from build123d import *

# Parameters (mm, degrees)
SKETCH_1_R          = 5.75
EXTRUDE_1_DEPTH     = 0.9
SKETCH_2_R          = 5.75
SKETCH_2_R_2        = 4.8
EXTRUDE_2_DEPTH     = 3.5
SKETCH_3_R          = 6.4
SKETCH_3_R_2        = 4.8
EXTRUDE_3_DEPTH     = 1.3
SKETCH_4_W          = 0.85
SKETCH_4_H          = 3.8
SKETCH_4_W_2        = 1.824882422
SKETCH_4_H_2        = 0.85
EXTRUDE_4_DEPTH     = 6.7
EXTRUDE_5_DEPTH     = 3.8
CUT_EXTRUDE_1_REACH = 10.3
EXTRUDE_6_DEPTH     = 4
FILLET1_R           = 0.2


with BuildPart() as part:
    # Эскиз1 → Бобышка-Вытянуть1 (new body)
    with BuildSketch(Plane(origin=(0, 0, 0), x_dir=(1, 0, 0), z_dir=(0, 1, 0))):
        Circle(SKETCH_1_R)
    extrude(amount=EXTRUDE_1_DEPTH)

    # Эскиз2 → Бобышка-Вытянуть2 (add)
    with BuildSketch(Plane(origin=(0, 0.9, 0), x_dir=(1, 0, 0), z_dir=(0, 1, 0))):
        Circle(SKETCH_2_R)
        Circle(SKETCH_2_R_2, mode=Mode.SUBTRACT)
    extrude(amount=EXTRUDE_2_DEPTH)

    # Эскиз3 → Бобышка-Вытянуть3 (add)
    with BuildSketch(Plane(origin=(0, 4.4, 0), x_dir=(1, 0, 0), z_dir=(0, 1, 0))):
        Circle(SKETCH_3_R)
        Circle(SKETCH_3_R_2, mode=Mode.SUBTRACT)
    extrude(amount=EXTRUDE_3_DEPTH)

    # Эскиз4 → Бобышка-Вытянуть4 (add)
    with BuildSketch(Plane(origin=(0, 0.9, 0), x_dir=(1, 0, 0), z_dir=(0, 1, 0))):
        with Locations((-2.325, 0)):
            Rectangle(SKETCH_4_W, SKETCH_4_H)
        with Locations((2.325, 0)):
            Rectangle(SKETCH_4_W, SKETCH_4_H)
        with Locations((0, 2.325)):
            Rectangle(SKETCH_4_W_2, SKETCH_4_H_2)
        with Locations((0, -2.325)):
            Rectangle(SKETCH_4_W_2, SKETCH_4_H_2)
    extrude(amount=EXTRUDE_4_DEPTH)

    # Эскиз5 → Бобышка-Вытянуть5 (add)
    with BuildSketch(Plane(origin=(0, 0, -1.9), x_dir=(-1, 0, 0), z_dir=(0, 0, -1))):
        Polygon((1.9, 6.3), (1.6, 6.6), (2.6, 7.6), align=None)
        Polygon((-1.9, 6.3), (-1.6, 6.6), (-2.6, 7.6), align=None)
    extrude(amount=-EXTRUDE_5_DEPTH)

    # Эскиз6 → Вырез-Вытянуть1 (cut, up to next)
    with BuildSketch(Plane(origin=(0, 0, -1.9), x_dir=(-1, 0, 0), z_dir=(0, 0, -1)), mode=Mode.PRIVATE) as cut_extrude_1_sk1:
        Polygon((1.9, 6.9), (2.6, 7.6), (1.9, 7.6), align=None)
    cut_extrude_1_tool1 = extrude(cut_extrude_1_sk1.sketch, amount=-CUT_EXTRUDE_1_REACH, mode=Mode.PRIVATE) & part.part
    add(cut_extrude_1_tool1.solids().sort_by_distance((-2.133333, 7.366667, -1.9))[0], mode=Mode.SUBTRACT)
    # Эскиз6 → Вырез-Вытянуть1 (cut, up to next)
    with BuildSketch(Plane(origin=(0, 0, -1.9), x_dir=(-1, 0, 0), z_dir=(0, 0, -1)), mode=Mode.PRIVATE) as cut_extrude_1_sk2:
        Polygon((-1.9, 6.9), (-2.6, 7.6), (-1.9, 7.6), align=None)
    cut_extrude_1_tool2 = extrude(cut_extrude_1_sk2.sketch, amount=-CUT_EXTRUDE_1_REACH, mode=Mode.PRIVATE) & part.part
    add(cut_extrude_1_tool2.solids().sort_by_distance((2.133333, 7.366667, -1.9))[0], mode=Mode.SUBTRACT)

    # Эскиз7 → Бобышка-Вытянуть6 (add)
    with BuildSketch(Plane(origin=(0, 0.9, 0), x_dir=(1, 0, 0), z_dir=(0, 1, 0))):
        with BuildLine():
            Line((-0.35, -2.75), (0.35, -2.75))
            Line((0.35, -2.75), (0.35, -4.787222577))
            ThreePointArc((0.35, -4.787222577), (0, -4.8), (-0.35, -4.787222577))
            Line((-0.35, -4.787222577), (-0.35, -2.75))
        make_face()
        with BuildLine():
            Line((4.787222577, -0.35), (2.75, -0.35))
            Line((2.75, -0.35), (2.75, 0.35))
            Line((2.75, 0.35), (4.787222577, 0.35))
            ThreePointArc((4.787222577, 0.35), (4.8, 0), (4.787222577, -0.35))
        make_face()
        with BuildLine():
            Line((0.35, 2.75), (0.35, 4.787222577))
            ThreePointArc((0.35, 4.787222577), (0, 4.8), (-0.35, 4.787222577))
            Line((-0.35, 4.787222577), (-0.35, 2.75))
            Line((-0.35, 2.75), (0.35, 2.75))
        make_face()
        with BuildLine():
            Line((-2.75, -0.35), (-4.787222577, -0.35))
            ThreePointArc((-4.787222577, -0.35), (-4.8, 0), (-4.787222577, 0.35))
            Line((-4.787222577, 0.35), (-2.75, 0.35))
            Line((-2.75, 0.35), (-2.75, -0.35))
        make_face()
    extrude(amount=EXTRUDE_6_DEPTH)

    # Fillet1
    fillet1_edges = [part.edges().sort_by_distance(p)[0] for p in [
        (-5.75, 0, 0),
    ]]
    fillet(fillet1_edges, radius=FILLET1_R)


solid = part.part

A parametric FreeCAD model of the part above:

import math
import FreeCAD as App
import Part
import Sketcher

V = App.Vector


def edges_at(feature, points):
    """Names of the edges that pass closest to the given points."""
    edges = feature.Shape.Edges
    near = lambda p: min(range(len(edges)), key=lambda i: edges[i].distToShape(Part.Vertex(*p))[0])
    return sorted({f"Edge{near(p) + 1}" for p in points})

doc = App.newDocument("Part")
body = doc.addObject("PartDesign::Body", "Body")

# Sketch on XZ plane
sketch1 = doc.addObject("Sketcher::SketchObject", "Sketch")
body.addObject(sketch1)
sketch1.AttachmentSupport = (doc.XZ_Plane, [""])
sketch1.MapMode = "FlatFace"
sketch1.addGeometry(Part.Circle(V(0, 0, 0), V(0, 0, 1), 6), False)
sketch1.addConstraint([
    Sketcher.Constraint("Coincident", 0, 3, -1, 1),
    Sketcher.Constraint("Diameter", 0, 11.5),
])
pad1 = doc.addObject("PartDesign::Pad", "Pad")
body.addObject(pad1)
pad1.Profile = sketch1
pad1.Length = 0.9
pad1.Reversed = True

# Sketch on XZ plane
sketch2 = doc.addObject("Sketcher::SketchObject", "Sketch001")
body.addObject(sketch2)
sketch2.AttachmentSupport = (doc.XZ_Plane, [""])
sketch2.MapMode = "FlatFace"
sketch2.AttachmentOffset = App.Placement(V(0, 0, -0.9), App.Rotation())
sketch2.addGeometry([
    Part.Circle(V(0, 0, 0), V(0, 0, 1), 5.8),
    Part.Circle(V(0, 0, 0), V(0, 0, 1), 4.8),
], False)
sketch2.addConstraint([
    Sketcher.Constraint("Coincident", 0, 3, -1, 1),
    Sketcher.Constraint("Coincident", 1, 3, -1, 1),
    Sketcher.Constraint("Diameter", 0, 11.5),
    Sketcher.Constraint("Diameter", 1, 9.6),
])
pad2 = doc.addObject("PartDesign::Pad", "Pad001")
body.addObject(pad2)
pad2.Profile = sketch2
pad2.Length = 3.5
pad2.Reversed = True

# Sketch on XZ plane
sketch3 = doc.addObject("Sketcher::SketchObject", "Sketch002")
body.addObject(sketch3)
sketch3.AttachmentSupport = (doc.XZ_Plane, [""])
sketch3.MapMode = "FlatFace"
sketch3.AttachmentOffset = App.Placement(V(0, 0, -4.4), App.Rotation())
sketch3.addGeometry([
    Part.Circle(V(0, 0, 0), V(0, 0, 1), 6.4),
    Part.Circle(V(0, 0, 0), V(0, 0, 1), 4.8),
], False)
sketch3.addConstraint([
    Sketcher.Constraint("Coincident", 0, 3, -1, 1),
    Sketcher.Constraint("Coincident", 1, 3, -1, 1),
    Sketcher.Constraint("Diameter", 0, 12.8),
    Sketcher.Constraint("Diameter", 1, 9.6),
])
pad3 = doc.addObject("PartDesign::Pad", "Pad002")
body.addObject(pad3)
pad3.Profile = sketch3
pad3.Length = 1.3
pad3.Reversed = True

# Sketch on XZ plane
sketch4 = doc.addObject("Sketcher::SketchObject", "Sketch003")
body.addObject(sketch4)
sketch4.AttachmentSupport = (doc.XZ_Plane, [""])
sketch4.MapMode = "FlatFace"
sketch4.AttachmentOffset = App.Placement(V(0, 0, -0.9), App.Rotation())
sketch4.addGeometry([
    Part.LineSegment(V(-2.8, -1.9, 0), V(-2.8, 1.9, 0)),  # 0
    Part.LineSegment(V(-2.8, 1.9, 0), V(-1.9, 1.9, 0)),  # 1
    Part.LineSegment(V(-1.9, 1.9, 0), V(-1.9, -1.9, 0)),  # 2
    Part.LineSegment(V(-1.9, -1.9, 0), V(-2.8, -1.9, 0)),  # 3
    Part.LineSegment(V(1.9, -1.9, 0), V(1.9, 1.9, 0)),  # 4
    Part.LineSegment(V(1.9, 1.9, 0), V(2.8, 1.9, 0)),  # 5
    Part.LineSegment(V(2.8, 1.9, 0), V(2.8, -1.9, 0)),  # 6
    Part.LineSegment(V(2.8, -1.9, 0), V(1.9, -1.9, 0)),  # 7
    Part.LineSegment(V(-0.9, -2.8, 0), V(-0.9, -1.9, 0)),  # 8
    Part.LineSegment(V(-0.9, -1.9, 0), V(0.9, -1.9, 0)),  # 9
    Part.LineSegment(V(0.9, -1.9, 0), V(0.9, -2.8, 0)),  # 10
    Part.LineSegment(V(0.9, -2.8, 0), V(-0.9, -2.8, 0)),  # 11
    Part.LineSegment(V(-0.9, 1.9, 0), V(-0.9, 2.8, 0)),  # 12
    Part.LineSegment(V(-0.9, 2.8, 0), V(0.9, 2.8, 0)),  # 13
    Part.LineSegment(V(0.9, 2.8, 0), V(0.9, 1.9, 0)),  # 14
    Part.LineSegment(V(0.9, 1.9, 0), V(-0.9, 1.9, 0)),  # 15
], False)
sketch4.addConstraint([
    Sketcher.Constraint("Coincident", 0, 2, 1, 1),
    Sketcher.Constraint("Coincident", 1, 2, 2, 1),
    Sketcher.Constraint("Coincident", 2, 2, 3, 1),
    Sketcher.Constraint("Coincident", 3, 2, 0, 1),
    Sketcher.Constraint("Coincident", 4, 2, 5, 1),
    Sketcher.Constraint("Coincident", 5, 2, 6, 1),
    Sketcher.Constraint("Coincident", 6, 2, 7, 1),
    Sketcher.Constraint("Coincident", 7, 2, 4, 1),
    Sketcher.Constraint("Coincident", 8, 2, 9, 1),
    Sketcher.Constraint("Coincident", 9, 2, 10, 1),
    Sketcher.Constraint("Coincident", 10, 2, 11, 1),
    Sketcher.Constraint("Coincident", 11, 2, 8, 1),
    Sketcher.Constraint("Coincident", 12, 2, 13, 1),
    Sketcher.Constraint("Coincident", 13, 2, 14, 1),
    Sketcher.Constraint("Coincident", 14, 2, 15, 1),
    Sketcher.Constraint("Coincident", 15, 2, 12, 1),
    Sketcher.Constraint("Vertical", 0),
    Sketcher.Constraint("Horizontal", 1),
    Sketcher.Constraint("Vertical", 2),
    Sketcher.Constraint("Horizontal", 3),
    Sketcher.Constraint("Vertical", 4),
    Sketcher.Constraint("Horizontal", 5),
    Sketcher.Constraint("Vertical", 6),
    Sketcher.Constraint("Horizontal", 7),
    Sketcher.Constraint("Vertical", 8),
    Sketcher.Constraint("Horizontal", 9),
    Sketcher.Constraint("Vertical", 10),
    Sketcher.Constraint("Horizontal", 11),
    Sketcher.Constraint("Vertical", 12),
    Sketcher.Constraint("Horizontal", 13),
    Sketcher.Constraint("Vertical", 14),
    Sketcher.Constraint("Horizontal", 15),
    Sketcher.Constraint("Symmetric", 2, 2, 4, 2, -1, 1),
    Sketcher.Constraint("Symmetric", 0, 2, 6, 2, -1, 1),
    Sketcher.Constraint("Symmetric", 10, 2, 12, 2, -1, 1),
    Sketcher.Constraint("Symmetric", 8, 2, 14, 2, -1, 1),
    Sketcher.Constraint("Horizontal", 1, 2, 4, 2),
    Sketcher.Constraint("Horizontal", 7, 2, 8, 2),
    Sketcher.Constraint("Vertical", 11, 2, 12, 2),
    Sketcher.Constraint("Equal", 7, 8),
    Sketcher.Constraint("DistanceY", 0, 1, 0, 2, 3.8),
    Sketcher.Constraint("DistanceX", 1, 1, 1, 2, 0.85),
    Sketcher.Constraint("DistanceX", 1, 2, -1, 1, 1.9),
    Sketcher.Constraint("DistanceX", 9, 1, 9, 2, 1.824882),
])
pad4 = doc.addObject("PartDesign::Pad", "Pad003")
body.addObject(pad4)
pad4.Profile = sketch4
pad4.Length = 6.7
pad4.Reversed = True

# Sketch on XY plane
sketch5 = doc.addObject("Sketcher::SketchObject", "Sketch004")
body.addObject(sketch5)
sketch5.AttachmentSupport = (doc.XY_Plane, [""])
sketch5.MapMode = "FlatFace"
sketch5.AttachmentOffset = App.Placement(V(0, 0, -1.9), App.Rotation())
sketch5.addGeometry([
    Part.LineSegment(V(-1.6, 6.6, 0), V(-1.9, 6.3, 0)),  # 0
    Part.LineSegment(V(-1.9, 6.3, 0), V(-2.6, 7.6, 0)),  # 1
    Part.LineSegment(V(-2.6, 7.6, 0), V(-1.6, 6.6, 0)),  # 2
    Part.LineSegment(V(1.9, 6.3, 0), V(1.6, 6.6, 0)),  # 3
    Part.LineSegment(V(1.6, 6.6, 0), V(2.6, 7.6, 0)),  # 4
    Part.LineSegment(V(2.6, 7.6, 0), V(1.9, 6.3, 0)),  # 5
], False)
sketch5.addConstraint([
    Sketcher.Constraint("Coincident", 0, 2, 1, 1),
    Sketcher.Constraint("Coincident", 1, 2, 2, 1),
    Sketcher.Constraint("Coincident", 2, 2, 0, 1),
    Sketcher.Constraint("Coincident", 3, 2, 4, 1),
    Sketcher.Constraint("Coincident", 4, 2, 5, 1),
    Sketcher.Constraint("Coincident", 5, 2, 3, 1),
    Sketcher.Constraint("Symmetric", 2, 2, 3, 2, -2),
    Sketcher.Constraint("Symmetric", 1, 2, 4, 2, -2),
    Sketcher.Constraint("Symmetric", 0, 2, 5, 2, -2),
    Sketcher.Constraint("Perpendicular", 0, 2),
    Sketcher.Constraint("Parallel", 2, 3),
    Sketcher.Constraint("DistanceX", 1, 2, 2, 2, 1.0),
    Sketcher.Constraint("DistanceX", 0, 2, -1, 1, 1.9),
    Sketcher.Constraint("DistanceY", -1, 1, 0, 2, 6.3),
    Sketcher.Constraint("DistanceX", 1, 2, -1, 1, 2.6),
])
pad5 = doc.addObject("PartDesign::Pad", "Pad004")
body.addObject(pad5)
pad5.Profile = sketch5
pad5.Length = 3.8

# Sketch on XY plane
sketch6 = doc.addObject("Sketcher::SketchObject", "Sketch005")
body.addObject(sketch6)
sketch6.AttachmentSupport = (doc.XY_Plane, [""])
sketch6.MapMode = "FlatFace"
sketch6.AttachmentOffset = App.Placement(V(0, 0, -1.9), App.Rotation())
sketch6.addGeometry([
    Part.LineSegment(V(-1.9, 6.9, 0), V(-2.6, 7.6, 0)),
    Part.LineSegment(V(-2.6, 7.6, 0), V(-1.9, 7.6, 0)),
    Part.LineSegment(V(-1.9, 7.6, 0), V(-1.9, 6.9, 0)),
], False)
sketch6.addConstraint([
    Sketcher.Constraint("Coincident", 0, 2, 1, 1),
    Sketcher.Constraint("Coincident", 1, 2, 2, 1),
    Sketcher.Constraint("Coincident", 2, 2, 0, 1),
    Sketcher.Constraint("Horizontal", 1),
    Sketcher.Constraint("Vertical", 2),
    Sketcher.Constraint("Equal", 1, 2),
    Sketcher.Constraint("DistanceX", 1, 1, 1, 2, 0.7),
    Sketcher.Constraint("DistanceX", 0, 2, -1, 1, 2.6),
    Sketcher.Constraint("DistanceY", -1, 1, 0, 2, 7.6),
])
pocket1 = doc.addObject("PartDesign::Pocket", "Pocket")
body.addObject(pocket1)
pocket1.Profile = sketch6
pocket1.Type = "UpToFirst"
pocket1.Reversed = True

# Sketch on XY plane
sketch7 = doc.addObject("Sketcher::SketchObject", "Sketch006")
body.addObject(sketch7)
sketch7.AttachmentSupport = (doc.XY_Plane, [""])
sketch7.MapMode = "FlatFace"
sketch7.AttachmentOffset = App.Placement(V(0, 0, -1.9), App.Rotation())
sketch7.addGeometry([
    Part.LineSegment(V(2.6, 7.6, 0), V(1.9, 6.9, 0)),
    Part.LineSegment(V(1.9, 6.9, 0), V(1.9, 7.6, 0)),
    Part.LineSegment(V(1.9, 7.6, 0), V(2.6, 7.6, 0)),
], False)
sketch7.addConstraint([
    Sketcher.Constraint("Coincident", 0, 2, 1, 1),
    Sketcher.Constraint("Coincident", 1, 2, 2, 1),
    Sketcher.Constraint("Coincident", 2, 2, 0, 1),
    Sketcher.Constraint("Vertical", 1),
    Sketcher.Constraint("Horizontal", 2),
    Sketcher.Constraint("Equal", 2, 1),
    Sketcher.Constraint("DistanceX", 2, 1, 2, 2, 0.7),
    Sketcher.Constraint("DistanceX", -1, 1, 0, 2, 1.9),
    Sketcher.Constraint("DistanceY", -1, 1, 0, 2, 6.9),
])
pocket2 = doc.addObject("PartDesign::Pocket", "Pocket001")
body.addObject(pocket2)
pocket2.Profile = sketch7
pocket2.Type = "UpToFirst"
pocket2.Reversed = True

# Sketch on XZ plane
sketch8 = doc.addObject("Sketcher::SketchObject", "Sketch007")
body.addObject(sketch8)
sketch8.AttachmentSupport = (doc.XZ_Plane, [""])
sketch8.MapMode = "FlatFace"
sketch8.AttachmentOffset = App.Placement(V(0, 0, -0.9), App.Rotation())
sketch8.addGeometry([
    Part.LineSegment(V(0.3, 2.8, 0), V(-0.3, 2.8, 0)),  # 0
    Part.LineSegment(V(-0.3, 2.8, 0), V(-0.3, 4.8, 0)),  # 1
    Part.ArcOfCircle(Part.Circle(V(0, 0, 0), V(0, 0, 1), 4.8), math.radians(85.82), math.radians(94.18)),  # 2
    Part.LineSegment(V(0.3, 4.8, 0), V(0.3, 2.8, 0)),  # 3
    Part.LineSegment(V(2.8, 0.3, 0), V(4.8, 0.3, 0)),  # 4
    Part.ArcOfCircle(Part.Circle(V(0, 0, 0), V(0, 0, 1), 4.8), math.radians(-4.18), math.radians(4.18)),  # 5
    Part.LineSegment(V(4.8, -0.3, 0), V(2.8, -0.3, 0)),  # 6
    Part.LineSegment(V(2.8, -0.3, 0), V(2.8, 0.3, 0)),  # 7
    Part.LineSegment(V(0.3, -2.8, 0), V(0.3, -4.8, 0)),  # 8
    Part.ArcOfCircle(Part.Circle(V(0, 0, 0), V(0, 0, 1), 4.8), math.radians(-94.18), math.radians(-85.82)),  # 9
    Part.LineSegment(V(-0.3, -4.8, 0), V(-0.3, -2.8, 0)),  # 10
    Part.LineSegment(V(-0.3, -2.8, 0), V(0.3, -2.8, 0)),  # 11
    Part.LineSegment(V(-4.8, 0.3, 0), V(-2.8, 0.3, 0)),  # 12
    Part.LineSegment(V(-2.8, 0.3, 0), V(-2.8, -0.3, 0)),  # 13
    Part.LineSegment(V(-2.8, -0.3, 0), V(-4.8, -0.3, 0)),  # 14
    Part.ArcOfCircle(Part.Circle(V(0, 0, 0), V(0, 0, 1), 4.8), math.radians(175.82), math.radians(184.18)),  # 15
], False)
sketch8.addConstraint([
    Sketcher.Constraint("Coincident", 0, 2, 1, 1),
    Sketcher.Constraint("Coincident", 1, 2, 2, 2),
    Sketcher.Constraint("Coincident", 2, 1, 3, 1),
    Sketcher.Constraint("Coincident", 3, 2, 0, 1),
    Sketcher.Constraint("Coincident", 4, 2, 5, 2),
    Sketcher.Constraint("Coincident", 5, 1, 6, 1),
    Sketcher.Constraint("Coincident", 6, 2, 7, 1),
    Sketcher.Constraint("Coincident", 7, 2, 4, 1),
    Sketcher.Constraint("Coincident", 8, 2, 9, 2),
    Sketcher.Constraint("Coincident", 9, 1, 10, 1),
    Sketcher.Constraint("Coincident", 10, 2, 11, 1),
    Sketcher.Constraint("Coincident", 11, 2, 8, 1),
    Sketcher.Constraint("Coincident", 12, 2, 13, 1),
    Sketcher.Constraint("Coincident", 13, 2, 14, 1),
    Sketcher.Constraint("Coincident", 14, 2, 15, 2),
    Sketcher.Constraint("Coincident", 15, 1, 12, 1),
    Sketcher.Constraint("Horizontal", 0),
    Sketcher.Constraint("Vertical", 1),
    Sketcher.Constraint("Vertical", 3),
    Sketcher.Constraint("Horizontal", 4),
    Sketcher.Constraint("Horizontal", 6),
    Sketcher.Constraint("Vertical", 7),
    Sketcher.Constraint("Vertical", 8),
    Sketcher.Constraint("Vertical", 10),
    Sketcher.Constraint("Horizontal", 11),
    Sketcher.Constraint("Horizontal", 12),
    Sketcher.Constraint("Vertical", 13),
    Sketcher.Constraint("Horizontal", 14),
    Sketcher.Constraint("Coincident", 2, 3, -1, 1),
    Sketcher.Constraint("Coincident", 5, 3, -1, 1),
    Sketcher.Constraint("Coincident", 9, 3, -1, 1),
    Sketcher.Constraint("Coincident", 15, 3, -1, 1),
    Sketcher.Constraint("Equal", 2, 5),
    Sketcher.Constraint("Equal", 5, 9),
    Sketcher.Constraint("Equal", 9, 15),
    Sketcher.Constraint("Symmetric", 3, 2, 10, 2, -1, 1),
    Sketcher.Constraint("Symmetric", 6, 2, 12, 2, -1, 1),
    Sketcher.Constraint("Horizontal", 1, 2, 2, 1),
    Sketcher.Constraint("Horizontal", 8, 2, 9, 1),
    Sketcher.Constraint("Horizontal", 7, 2, 12, 2),
    Sketcher.Constraint("Horizontal", 6, 2, 13, 2),
    Sketcher.Constraint("Equal", 14, 1),
    Sketcher.Constraint("Equal", 11, 7),
    Sketcher.Constraint("Radius", 2, 4.8),
    Sketcher.Constraint("DistanceX", 0, 2, 0, 1, 0.7),
    Sketcher.Constraint("DistanceY", 4, 2, 3, 2, 2.4),
])
pad6 = doc.addObject("PartDesign::Pad", "Pad005")
body.addObject(pad6)
pad6.Profile = sketch8
pad6.Length = 4
pad6.Reversed = True
doc.recompute()

fillet = doc.addObject("PartDesign::Fillet", "Fillet")
body.addObject(fillet)
fillet.Base = (pad6, edges_at(pad6, [(-5.75, 0, 0)]))
fillet.Radius = 0.2

doc.recompute()
